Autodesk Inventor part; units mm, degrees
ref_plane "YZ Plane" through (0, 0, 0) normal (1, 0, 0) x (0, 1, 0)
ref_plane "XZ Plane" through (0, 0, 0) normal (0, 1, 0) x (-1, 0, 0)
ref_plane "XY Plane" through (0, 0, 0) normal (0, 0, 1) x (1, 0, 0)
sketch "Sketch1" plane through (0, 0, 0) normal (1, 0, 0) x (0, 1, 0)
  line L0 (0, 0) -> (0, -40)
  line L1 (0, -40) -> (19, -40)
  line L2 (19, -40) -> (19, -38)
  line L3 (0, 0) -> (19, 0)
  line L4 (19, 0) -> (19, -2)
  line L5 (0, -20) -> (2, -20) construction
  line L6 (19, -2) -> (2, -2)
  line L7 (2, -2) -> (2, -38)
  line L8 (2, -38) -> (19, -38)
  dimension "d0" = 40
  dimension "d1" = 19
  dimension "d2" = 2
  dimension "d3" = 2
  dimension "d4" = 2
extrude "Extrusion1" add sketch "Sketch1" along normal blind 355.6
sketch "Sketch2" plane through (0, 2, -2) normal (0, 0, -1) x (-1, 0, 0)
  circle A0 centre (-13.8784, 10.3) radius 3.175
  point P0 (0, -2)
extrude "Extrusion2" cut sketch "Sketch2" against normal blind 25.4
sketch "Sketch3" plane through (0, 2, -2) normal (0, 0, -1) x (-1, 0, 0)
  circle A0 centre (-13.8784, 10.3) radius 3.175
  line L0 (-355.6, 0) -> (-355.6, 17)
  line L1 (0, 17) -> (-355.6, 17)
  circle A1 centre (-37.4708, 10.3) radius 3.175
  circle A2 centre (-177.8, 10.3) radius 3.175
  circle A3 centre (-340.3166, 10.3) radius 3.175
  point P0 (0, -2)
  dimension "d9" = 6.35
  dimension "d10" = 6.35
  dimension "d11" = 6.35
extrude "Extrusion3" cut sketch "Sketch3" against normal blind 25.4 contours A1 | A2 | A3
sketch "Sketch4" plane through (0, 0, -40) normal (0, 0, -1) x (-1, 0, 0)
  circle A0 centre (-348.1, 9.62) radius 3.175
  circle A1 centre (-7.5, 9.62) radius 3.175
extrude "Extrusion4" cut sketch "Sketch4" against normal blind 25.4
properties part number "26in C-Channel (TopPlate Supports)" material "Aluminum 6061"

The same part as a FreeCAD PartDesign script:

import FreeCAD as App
import Part
import Sketcher

V = App.Vector


def add_polygon(sketch, points):
    """Adds a closed chain of lines whose ends are joined by coincident constraints."""
    first, n = sketch.GeometryCount, len(points)
    for a, b in zip(points, points[1:] + points[:1]):
        sketch.addGeometry(Part.LineSegment(App.Vector(*a, 0), App.Vector(*b, 0)), False)
    for i in range(n):
        sketch.addConstraint(Sketcher.Constraint("Coincident", first + i, 2, first + (i + 1) % n, 1))

doc = App.newDocument("Part")
body = doc.addObject("PartDesign::Body", "Body")

# Sketch on YZ plane
sketch1 = body.newObject("Sketcher::SketchObject", "Sketch")
sketch1.AttachmentSupport = (doc.getObject("YZ_Plane"), [""])
sketch1.MapMode = "FlatFace"
add_polygon(sketch1, [(19, 0), (0, 0), (0, -40), (19, -40), (19, -38), (2, -38), (2, -2), (19, -2)])  # lines 0-7
sketch1.addConstraint(Sketcher.Constraint("Horizontal", 0))
sketch1.addConstraint(Sketcher.Constraint("Vertical", 1))
sketch1.addConstraint(Sketcher.Constraint("Horizontal", 2))
sketch1.addConstraint(Sketcher.Constraint("Vertical", 3))
sketch1.addConstraint(Sketcher.Constraint("Horizontal", 4))
sketch1.addConstraint(Sketcher.Constraint("Vertical", 5))
sketch1.addConstraint(Sketcher.Constraint("Horizontal", 6))
sketch1.addConstraint(Sketcher.Constraint("Vertical", 7))
sketch1.addConstraint(Sketcher.Constraint("Coincident", 0, 2, -1, 1))
sketch1.addConstraint(Sketcher.Constraint("Vertical", 3, 2, 6, 2))
sketch1.addConstraint(Sketcher.Constraint("Equal", 3, 7))
sketch1.addConstraint(Sketcher.Constraint("DistanceX", 0, 2, 0, 1, 19.0))
sketch1.addConstraint(Sketcher.Constraint("DistanceY", 1, 2, 1, 1, 40.0))
sketch1.addConstraint(Sketcher.Constraint("DistanceY", 3, 1, 3, 2, 2.0))
sketch1.addConstraint(Sketcher.Constraint("DistanceX", -1, 1, 4, 2, 2.0))
pad1 = body.newObject("PartDesign::Pad", "Pad")
pad1.Profile = sketch1
pad1.Length = 355.6

# Sketch on XY plane
sketch2 = body.newObject("Sketcher::SketchObject", "Sketch001")
sketch2.AttachmentSupport = (doc.getObject("XY_Plane"), [""])
sketch2.MapMode = "FlatFace"
sketch2.AttachmentOffset = App.Placement(V(0, 0, -2), App.Rotation())
sketch2.addGeometry(Part.Circle(V(13.9, 12.3, 0), V(0, 0, 1), 3.2), False)
sketch2.addConstraint(Sketcher.Constraint("Diameter", 0, 6.35))
sketch2.addConstraint(Sketcher.Constraint("DistanceY", -1, 1, 0, 3, 12.3))
sketch2.addConstraint(Sketcher.Constraint("DistanceX", -1, 1, 0, 3, 13.8784))
pocket1 = body.newObject("PartDesign::Pocket", "Pocket")
pocket1.Profile = sketch2
pocket1.Length = 25.4
pocket1.Reversed = True

# Sketch on XY plane
sketch3 = body.newObject("Sketcher::SketchObject", "Sketch002")
sketch3.AttachmentSupport = (doc.getObject("XY_Plane"), [""])
sketch3.MapMode = "FlatFace"
sketch3.AttachmentOffset = App.Placement(V(0, 0, -2), App.Rotation())
sketch3.addGeometry(Part.Circle(V(37.5, 12.3, 0), V(0, 0, 1), 3.2), False)
sketch3.addGeometry(Part.Circle(V(177.8, 12.3, 0), V(0, 0, 1), 3.2), False)
sketch3.addGeometry(Part.Circle(V(340.3, 12.3, 0), V(0, 0, 1), 3.2), False)
sketch3.addConstraint(Sketcher.Constraint("Equal", 0, 1))
sketch3.addConstraint(Sketcher.Constraint("Equal", 1, 2))
sketch3.addConstraint(Sketcher.Constraint("Horizontal", 0, 3, 1, 3))
sketch3.addConstraint(Sketcher.Constraint("Horizontal", 1, 3, 2, 3))
sketch3.addConstraint(Sketcher.Constraint("Diameter", 0, 6.35))
sketch3.addConstraint(Sketcher.Constraint("DistanceY", -1, 1, 0, 3, 12.3))
sketch3.addConstraint(Sketcher.Constraint("DistanceX", -1, 1, 1, 3, 177.8))
sketch3.addConstraint(Sketcher.Constraint("DistanceX", -1, 1, 0, 3, 37.4708))
sketch3.addConstraint(Sketcher.Constraint("DistanceX", -1, 1, 2, 3, 340.3166))
pocket2 = body.newObject("PartDesign::Pocket", "Pocket001")
pocket2.Profile = sketch3
pocket2.Length = 25.4
pocket2.Reversed = True

# Sketch on XY plane
sketch4 = body.newObject("Sketcher::SketchObject", "Sketch003")
sketch4.AttachmentSupport = (doc.getObject("XY_Plane"), [""])
sketch4.MapMode = "FlatFace"
sketch4.AttachmentOffset = App.Placement(V(0, 0, -40), App.Rotation())
sketch4.addGeometry(Part.Circle(V(348.1, 9.6, 0), V(0, 0, 1), 3.2), False)
sketch4.addGeometry(Part.Circle(V(7.5, 9.6, 0), V(0, 0, 1), 3.2), False)
sketch4.addConstraint(Sketcher.Constraint("Equal", 0, 1))
sketch4.addConstraint(Sketcher.Constraint("Horizontal", 0, 3, 1, 3))
sketch4.addConstraint(Sketcher.Constraint("Diameter", 0, 6.35))
sketch4.addConstraint(Sketcher.Constraint("DistanceX", -1, 1, 0, 3, 348.1))
sketch4.addConstraint(Sketcher.Constraint("DistanceX", -1, 1, 1, 3, 7.5))
sketch4.addConstraint(Sketcher.Constraint("DistanceY", -1, 1, 0, 3, 9.62))
pocket3 = body.newObject("PartDesign::Pocket", "Pocket002")
pocket3.Profile = sketch4
pocket3.Length = 25.4
pocket3.Reversed = True

doc.recompute()
